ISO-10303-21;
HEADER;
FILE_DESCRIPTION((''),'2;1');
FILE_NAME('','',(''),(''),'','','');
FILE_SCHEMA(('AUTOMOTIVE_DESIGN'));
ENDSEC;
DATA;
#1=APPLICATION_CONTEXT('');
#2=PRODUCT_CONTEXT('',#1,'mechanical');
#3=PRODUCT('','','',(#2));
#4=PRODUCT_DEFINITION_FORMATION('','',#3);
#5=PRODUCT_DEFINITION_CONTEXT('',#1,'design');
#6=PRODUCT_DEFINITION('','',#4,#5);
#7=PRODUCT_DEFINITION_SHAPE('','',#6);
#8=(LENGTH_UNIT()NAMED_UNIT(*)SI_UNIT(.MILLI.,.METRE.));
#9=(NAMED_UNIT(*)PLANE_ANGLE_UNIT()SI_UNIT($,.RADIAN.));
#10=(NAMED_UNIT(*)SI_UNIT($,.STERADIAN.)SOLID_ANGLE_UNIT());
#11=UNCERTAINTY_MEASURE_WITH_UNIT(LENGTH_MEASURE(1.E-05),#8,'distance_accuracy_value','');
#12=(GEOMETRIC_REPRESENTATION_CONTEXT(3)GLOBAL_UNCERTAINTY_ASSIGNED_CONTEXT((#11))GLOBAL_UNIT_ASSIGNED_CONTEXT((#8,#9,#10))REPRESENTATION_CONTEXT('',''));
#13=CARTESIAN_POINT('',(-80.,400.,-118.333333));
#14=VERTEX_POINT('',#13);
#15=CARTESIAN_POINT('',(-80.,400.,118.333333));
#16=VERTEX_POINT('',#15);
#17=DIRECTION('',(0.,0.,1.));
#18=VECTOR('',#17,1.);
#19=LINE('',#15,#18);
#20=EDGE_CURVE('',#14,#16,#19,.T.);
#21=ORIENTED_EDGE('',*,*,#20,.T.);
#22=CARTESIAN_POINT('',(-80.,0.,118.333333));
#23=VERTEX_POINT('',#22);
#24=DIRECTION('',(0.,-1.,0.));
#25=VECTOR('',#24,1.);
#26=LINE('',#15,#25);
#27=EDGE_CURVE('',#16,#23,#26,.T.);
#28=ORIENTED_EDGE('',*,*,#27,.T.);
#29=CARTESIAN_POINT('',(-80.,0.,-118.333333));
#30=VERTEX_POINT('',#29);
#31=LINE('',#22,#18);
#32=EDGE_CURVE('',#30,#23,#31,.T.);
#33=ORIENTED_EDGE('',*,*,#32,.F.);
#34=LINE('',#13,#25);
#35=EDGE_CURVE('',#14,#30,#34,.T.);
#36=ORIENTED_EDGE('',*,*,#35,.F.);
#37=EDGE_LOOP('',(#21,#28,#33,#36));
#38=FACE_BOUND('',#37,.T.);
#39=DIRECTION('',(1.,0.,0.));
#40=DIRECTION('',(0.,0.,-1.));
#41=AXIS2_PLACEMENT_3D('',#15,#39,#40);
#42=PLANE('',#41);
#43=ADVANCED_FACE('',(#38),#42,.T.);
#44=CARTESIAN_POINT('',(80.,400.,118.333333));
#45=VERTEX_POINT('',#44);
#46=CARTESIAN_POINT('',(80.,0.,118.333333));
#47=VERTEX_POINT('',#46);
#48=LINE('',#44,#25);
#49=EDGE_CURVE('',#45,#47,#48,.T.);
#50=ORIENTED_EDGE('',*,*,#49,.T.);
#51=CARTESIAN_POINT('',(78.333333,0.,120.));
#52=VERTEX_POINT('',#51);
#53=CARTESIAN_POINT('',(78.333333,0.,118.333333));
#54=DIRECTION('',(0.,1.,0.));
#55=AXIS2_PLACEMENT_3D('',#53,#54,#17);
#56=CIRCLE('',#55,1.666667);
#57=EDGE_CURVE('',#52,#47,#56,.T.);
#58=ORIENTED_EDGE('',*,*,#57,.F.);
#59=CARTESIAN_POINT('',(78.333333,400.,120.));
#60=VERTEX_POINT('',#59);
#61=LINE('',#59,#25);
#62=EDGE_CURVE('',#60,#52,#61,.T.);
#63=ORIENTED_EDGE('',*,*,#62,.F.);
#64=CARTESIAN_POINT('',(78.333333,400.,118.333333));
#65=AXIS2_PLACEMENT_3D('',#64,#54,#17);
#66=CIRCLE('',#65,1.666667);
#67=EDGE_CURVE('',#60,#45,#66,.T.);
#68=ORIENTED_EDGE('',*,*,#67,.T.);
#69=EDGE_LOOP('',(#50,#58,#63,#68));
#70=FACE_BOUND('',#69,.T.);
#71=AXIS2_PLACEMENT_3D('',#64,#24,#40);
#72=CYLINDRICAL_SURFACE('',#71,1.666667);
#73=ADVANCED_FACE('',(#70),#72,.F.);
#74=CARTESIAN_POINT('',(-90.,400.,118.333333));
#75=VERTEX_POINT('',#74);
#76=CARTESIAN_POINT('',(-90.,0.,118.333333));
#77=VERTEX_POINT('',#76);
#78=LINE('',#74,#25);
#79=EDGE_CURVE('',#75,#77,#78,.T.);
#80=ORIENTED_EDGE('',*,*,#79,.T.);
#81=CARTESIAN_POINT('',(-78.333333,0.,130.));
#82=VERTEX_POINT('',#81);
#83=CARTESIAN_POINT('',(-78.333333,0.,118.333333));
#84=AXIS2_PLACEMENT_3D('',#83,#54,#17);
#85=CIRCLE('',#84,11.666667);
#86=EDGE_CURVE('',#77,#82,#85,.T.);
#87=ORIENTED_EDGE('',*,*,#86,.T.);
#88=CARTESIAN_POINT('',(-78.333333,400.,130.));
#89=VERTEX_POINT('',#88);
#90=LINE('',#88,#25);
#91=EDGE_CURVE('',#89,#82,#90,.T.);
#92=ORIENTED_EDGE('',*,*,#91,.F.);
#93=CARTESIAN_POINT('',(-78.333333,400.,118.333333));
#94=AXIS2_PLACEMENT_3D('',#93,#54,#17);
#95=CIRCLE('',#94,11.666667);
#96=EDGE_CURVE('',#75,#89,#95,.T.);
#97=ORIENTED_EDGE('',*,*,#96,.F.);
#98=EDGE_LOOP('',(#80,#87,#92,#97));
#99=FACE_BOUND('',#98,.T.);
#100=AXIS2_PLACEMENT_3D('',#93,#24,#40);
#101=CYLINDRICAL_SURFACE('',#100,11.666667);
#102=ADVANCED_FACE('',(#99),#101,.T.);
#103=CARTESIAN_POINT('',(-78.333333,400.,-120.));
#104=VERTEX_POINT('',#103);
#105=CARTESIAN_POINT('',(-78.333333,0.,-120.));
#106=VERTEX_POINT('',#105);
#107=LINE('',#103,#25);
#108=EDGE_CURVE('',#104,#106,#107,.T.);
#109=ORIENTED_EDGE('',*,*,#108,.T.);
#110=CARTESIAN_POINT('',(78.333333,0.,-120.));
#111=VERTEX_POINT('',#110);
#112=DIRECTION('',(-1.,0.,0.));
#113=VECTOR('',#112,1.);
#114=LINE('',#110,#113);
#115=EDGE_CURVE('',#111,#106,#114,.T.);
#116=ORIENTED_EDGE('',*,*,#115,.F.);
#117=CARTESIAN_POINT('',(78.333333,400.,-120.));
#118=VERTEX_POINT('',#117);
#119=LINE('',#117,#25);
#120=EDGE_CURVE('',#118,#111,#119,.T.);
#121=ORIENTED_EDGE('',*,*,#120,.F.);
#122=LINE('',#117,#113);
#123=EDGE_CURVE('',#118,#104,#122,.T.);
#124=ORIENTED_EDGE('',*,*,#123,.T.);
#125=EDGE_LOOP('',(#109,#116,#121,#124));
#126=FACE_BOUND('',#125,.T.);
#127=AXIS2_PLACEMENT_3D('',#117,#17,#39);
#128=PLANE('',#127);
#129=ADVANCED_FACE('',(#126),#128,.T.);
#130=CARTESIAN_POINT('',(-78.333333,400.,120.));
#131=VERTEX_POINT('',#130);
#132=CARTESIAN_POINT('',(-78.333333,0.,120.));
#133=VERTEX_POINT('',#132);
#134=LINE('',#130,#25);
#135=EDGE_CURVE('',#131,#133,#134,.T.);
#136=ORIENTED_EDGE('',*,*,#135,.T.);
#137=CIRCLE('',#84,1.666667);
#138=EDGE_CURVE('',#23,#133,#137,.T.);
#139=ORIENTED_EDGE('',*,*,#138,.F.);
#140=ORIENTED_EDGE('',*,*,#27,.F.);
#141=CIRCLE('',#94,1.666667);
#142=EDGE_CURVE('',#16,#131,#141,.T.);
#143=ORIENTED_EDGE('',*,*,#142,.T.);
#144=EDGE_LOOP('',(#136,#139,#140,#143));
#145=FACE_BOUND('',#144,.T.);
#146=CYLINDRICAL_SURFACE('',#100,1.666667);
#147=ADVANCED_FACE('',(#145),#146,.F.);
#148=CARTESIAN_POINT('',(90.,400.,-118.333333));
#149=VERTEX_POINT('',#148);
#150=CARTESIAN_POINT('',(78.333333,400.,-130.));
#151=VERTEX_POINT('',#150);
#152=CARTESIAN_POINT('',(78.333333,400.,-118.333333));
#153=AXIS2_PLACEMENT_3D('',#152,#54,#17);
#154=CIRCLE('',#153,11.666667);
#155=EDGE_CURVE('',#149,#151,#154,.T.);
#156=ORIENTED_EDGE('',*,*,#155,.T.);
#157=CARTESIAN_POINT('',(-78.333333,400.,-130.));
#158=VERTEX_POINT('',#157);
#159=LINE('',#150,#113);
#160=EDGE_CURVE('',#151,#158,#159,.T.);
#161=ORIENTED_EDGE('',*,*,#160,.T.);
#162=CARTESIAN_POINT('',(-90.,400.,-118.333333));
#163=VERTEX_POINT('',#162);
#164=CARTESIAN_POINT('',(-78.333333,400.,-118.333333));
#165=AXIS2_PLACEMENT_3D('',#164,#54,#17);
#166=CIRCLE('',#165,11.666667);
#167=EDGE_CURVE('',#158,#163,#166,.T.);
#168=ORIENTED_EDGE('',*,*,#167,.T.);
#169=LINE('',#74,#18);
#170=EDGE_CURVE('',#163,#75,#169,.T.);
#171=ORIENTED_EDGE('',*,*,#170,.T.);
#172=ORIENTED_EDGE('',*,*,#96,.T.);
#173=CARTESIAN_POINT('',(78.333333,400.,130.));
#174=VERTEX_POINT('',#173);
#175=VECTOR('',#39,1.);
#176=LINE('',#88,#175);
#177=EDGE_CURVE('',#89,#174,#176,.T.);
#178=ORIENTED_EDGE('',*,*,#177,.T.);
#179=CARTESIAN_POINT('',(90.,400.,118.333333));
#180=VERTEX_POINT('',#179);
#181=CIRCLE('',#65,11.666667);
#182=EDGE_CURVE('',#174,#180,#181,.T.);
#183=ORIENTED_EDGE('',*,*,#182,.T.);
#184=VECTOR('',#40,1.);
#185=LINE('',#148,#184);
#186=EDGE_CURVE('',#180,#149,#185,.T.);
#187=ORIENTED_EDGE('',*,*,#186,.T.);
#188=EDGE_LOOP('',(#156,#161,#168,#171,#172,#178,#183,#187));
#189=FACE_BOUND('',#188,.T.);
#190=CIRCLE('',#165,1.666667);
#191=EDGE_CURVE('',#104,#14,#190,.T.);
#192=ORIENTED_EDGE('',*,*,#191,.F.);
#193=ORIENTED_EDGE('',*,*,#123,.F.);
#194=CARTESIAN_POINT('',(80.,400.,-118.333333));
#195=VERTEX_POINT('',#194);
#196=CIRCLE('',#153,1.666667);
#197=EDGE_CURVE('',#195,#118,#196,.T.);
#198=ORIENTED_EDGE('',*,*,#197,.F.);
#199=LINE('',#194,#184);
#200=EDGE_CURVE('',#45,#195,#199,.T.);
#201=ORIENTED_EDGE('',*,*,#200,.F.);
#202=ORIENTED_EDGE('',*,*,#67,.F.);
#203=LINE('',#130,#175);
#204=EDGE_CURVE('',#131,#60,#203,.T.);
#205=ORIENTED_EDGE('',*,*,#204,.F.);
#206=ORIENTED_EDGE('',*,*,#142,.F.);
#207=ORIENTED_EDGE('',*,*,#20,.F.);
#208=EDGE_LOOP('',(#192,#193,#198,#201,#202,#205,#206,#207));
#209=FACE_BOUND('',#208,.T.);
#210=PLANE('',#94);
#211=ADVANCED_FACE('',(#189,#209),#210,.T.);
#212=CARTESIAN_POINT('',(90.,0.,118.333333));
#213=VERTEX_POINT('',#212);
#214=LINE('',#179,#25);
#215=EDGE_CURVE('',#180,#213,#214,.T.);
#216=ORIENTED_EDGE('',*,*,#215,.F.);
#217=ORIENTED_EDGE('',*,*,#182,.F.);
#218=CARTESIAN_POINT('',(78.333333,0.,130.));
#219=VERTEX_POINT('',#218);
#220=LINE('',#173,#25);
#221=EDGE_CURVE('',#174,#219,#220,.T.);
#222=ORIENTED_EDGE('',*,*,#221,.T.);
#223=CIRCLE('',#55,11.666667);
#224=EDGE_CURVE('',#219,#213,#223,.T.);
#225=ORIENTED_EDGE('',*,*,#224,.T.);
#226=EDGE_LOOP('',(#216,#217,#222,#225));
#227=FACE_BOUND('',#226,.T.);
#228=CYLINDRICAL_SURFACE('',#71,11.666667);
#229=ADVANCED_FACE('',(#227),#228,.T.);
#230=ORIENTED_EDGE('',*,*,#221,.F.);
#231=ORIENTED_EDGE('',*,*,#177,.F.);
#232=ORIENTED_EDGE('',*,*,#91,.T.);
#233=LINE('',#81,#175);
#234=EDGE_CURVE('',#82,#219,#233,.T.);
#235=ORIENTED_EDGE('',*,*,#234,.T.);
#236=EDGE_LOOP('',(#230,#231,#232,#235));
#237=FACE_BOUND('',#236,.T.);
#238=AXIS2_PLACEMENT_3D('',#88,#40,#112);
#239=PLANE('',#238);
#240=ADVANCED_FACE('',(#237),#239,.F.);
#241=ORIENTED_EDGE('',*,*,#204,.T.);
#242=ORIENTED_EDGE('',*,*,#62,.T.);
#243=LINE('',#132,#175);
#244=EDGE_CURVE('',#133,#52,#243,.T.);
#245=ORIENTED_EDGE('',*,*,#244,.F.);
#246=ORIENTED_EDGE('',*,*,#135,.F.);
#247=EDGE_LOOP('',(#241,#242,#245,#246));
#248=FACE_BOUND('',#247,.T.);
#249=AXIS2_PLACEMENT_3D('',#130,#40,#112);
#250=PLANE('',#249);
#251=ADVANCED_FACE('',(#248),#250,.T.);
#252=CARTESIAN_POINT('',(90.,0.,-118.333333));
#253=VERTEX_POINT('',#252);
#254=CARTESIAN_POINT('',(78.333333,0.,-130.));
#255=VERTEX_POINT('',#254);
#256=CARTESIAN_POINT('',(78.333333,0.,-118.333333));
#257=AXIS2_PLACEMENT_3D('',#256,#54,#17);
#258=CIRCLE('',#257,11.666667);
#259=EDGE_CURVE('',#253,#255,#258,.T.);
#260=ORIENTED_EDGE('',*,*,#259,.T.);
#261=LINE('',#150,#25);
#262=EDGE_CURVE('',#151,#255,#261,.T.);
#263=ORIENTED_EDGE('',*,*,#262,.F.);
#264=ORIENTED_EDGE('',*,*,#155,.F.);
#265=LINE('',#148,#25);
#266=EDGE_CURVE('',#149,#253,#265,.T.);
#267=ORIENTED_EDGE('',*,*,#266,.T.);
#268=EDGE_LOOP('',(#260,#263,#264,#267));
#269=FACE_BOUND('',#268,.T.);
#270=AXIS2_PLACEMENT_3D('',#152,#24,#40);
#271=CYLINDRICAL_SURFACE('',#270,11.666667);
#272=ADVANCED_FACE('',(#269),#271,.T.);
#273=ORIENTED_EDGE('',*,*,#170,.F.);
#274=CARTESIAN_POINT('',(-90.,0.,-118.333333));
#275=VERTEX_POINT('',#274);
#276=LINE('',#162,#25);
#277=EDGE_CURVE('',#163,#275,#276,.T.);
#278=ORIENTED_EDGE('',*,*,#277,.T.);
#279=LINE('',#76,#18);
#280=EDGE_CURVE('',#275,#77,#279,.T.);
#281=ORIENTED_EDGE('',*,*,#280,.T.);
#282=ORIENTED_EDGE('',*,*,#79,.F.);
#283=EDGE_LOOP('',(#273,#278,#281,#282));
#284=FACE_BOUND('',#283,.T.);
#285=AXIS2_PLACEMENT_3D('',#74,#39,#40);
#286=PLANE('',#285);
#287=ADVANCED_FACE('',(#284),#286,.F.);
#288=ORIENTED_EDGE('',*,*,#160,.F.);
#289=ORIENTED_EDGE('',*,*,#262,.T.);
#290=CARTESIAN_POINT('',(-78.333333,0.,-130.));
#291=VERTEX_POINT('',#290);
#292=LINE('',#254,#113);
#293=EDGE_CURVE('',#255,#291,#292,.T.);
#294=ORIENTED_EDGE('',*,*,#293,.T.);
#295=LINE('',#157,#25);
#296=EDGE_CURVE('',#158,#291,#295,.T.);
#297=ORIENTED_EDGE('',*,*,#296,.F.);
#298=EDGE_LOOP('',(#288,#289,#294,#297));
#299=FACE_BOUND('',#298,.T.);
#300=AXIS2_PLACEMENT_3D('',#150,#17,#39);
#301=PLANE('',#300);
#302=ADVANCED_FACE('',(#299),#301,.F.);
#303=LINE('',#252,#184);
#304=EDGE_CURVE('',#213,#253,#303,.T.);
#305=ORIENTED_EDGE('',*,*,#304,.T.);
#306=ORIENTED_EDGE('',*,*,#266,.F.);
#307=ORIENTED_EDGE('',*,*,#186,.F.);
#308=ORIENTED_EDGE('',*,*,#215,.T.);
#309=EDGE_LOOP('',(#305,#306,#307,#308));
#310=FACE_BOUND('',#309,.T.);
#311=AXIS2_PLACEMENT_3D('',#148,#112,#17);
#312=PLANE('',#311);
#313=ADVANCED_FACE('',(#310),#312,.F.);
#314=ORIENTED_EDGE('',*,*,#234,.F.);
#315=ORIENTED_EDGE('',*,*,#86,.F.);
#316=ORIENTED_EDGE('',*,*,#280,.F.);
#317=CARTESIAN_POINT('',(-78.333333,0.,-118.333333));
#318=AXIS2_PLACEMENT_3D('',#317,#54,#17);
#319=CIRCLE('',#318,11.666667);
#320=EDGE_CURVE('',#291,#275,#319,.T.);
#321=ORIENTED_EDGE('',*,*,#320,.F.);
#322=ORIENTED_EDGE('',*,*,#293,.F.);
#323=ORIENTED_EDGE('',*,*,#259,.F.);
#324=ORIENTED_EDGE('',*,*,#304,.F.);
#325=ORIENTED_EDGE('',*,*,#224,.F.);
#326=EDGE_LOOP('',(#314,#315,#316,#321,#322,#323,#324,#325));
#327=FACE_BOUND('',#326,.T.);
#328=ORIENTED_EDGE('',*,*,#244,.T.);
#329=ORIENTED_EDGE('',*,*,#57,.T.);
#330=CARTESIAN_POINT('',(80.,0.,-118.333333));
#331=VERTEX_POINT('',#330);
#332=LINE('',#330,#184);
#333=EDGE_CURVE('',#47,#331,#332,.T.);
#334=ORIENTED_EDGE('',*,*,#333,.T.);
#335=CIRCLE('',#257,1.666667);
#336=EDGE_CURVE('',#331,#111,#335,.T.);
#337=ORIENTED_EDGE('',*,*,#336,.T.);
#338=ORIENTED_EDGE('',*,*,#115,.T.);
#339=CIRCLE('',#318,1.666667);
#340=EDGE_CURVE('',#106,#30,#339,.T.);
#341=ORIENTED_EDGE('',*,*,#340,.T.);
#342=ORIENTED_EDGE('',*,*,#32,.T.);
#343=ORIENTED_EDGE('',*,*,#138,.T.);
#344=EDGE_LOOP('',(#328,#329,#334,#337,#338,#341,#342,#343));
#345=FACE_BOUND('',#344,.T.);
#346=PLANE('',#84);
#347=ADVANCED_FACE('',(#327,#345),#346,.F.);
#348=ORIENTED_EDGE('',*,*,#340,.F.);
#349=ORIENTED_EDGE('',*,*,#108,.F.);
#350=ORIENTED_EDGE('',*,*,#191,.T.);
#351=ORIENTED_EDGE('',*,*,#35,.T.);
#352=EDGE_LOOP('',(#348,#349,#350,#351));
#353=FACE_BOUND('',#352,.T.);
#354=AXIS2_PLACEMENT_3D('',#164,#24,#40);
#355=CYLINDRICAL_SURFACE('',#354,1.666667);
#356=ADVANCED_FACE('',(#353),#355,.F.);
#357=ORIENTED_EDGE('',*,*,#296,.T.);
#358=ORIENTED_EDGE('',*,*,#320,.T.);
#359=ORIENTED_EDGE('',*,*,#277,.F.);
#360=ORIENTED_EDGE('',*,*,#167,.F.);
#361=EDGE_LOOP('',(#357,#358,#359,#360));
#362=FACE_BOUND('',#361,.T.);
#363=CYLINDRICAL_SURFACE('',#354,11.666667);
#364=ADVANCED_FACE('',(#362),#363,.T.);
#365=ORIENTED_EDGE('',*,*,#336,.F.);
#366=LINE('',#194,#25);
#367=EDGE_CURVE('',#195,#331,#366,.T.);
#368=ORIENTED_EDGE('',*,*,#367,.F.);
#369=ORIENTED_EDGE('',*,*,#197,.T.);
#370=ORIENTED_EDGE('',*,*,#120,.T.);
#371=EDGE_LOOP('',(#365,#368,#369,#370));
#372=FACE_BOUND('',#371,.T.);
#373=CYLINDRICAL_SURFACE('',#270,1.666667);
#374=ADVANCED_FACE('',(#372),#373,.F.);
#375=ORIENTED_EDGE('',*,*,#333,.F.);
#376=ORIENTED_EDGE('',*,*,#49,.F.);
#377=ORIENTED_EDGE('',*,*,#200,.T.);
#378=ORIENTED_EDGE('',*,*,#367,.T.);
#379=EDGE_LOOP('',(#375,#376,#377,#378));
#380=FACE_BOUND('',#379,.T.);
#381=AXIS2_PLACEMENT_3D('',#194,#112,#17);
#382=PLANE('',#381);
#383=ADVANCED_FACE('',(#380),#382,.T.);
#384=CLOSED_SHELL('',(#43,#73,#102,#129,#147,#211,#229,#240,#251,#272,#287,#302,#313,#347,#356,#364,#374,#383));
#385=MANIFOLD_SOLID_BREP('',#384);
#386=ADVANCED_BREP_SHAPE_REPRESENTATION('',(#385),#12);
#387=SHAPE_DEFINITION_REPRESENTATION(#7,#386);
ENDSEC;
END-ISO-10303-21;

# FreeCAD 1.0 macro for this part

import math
import FreeCAD as App
import Part
import Sketcher

V = App.Vector

doc = App.newDocument("Part")
body = doc.addObject("PartDesign::Body", "Body")

sketch1 = doc.addObject("Sketcher::SketchObject", "Sketch")
body.addObject(sketch1)
sketch1.AttachmentSupport = (doc.XZ_Plane, [""])
sketch1.MapMode = "FlatFace"
sketch1.addGeometry([
    Part.LineSegment(V(78.3, -130, 0), V(-78.3, -130, 0)),
    Part.ArcOfCircle(Part.Circle(V(-78.3, -118.3, 0), V(0, 0, 1), 11.7), math.radians(180), math.radians(270)),
    Part.LineSegment(V(-90, -118.3, 0), V(-90, 118.3, 0)),
    Part.ArcOfCircle(Part.Circle(V(-78.3, 118.3, 0), V(0, 0, 1), 11.7), math.radians(90), math.radians(180)),
    Part.LineSegment(V(-78.3, 130, 0), V(78.3, 130, 0)),
    Part.ArcOfCircle(Part.Circle(V(78.3, 118.3, 0), V(0, 0, 1), 11.7), math.radians(0), math.radians(90)),
    Part.LineSegment(V(90, 118.3, 0), V(90, -118.3, 0)),
    Part.ArcOfCircle(Part.Circle(V(78.3, -118.3, 0), V(0, 0, 1), 11.7), math.radians(-90), math.radians(0)),
    Part.LineSegment(V(-78.3, -120, 0), V(78.3, -120, 0)),
    Part.ArcOfCircle(Part.Circle(V(78.3, -118.3, 0), V(0, 0, 1), 1.7), math.radians(-90), math.radians(0)),
    Part.LineSegment(V(80, -118.3, 0), V(80, 118.3, 0)),
    Part.ArcOfCircle(Part.Circle(V(78.3, 118.3, 0), V(0, 0, 1), 1.7), math.radians(0), math.radians(90)),
    Part.LineSegment(V(78.3, 120, 0), V(-78.3, 120, 0)),
    Part.ArcOfCircle(Part.Circle(V(-78.3, 118.3, 0), V(0, 0, 1), 1.7), math.radians(90), math.radians(180)),
    Part.LineSegment(V(-80, 118.3, 0), V(-80, -118.3, 0)),
    Part.ArcOfCircle(Part.Circle(V(-78.3, -118.3, 0), V(0, 0, 1), 1.7), math.radians(-180), math.radians(-90)),
], False)
sketch1.addConstraint([
    Sketcher.Constraint("Tangent", 0, 2, 1, 2),
    Sketcher.Constraint("Tangent", 1, 1, 2, 1),
    Sketcher.Constraint("Tangent", 2, 2, 3, 2),
    Sketcher.Constraint("Tangent", 3, 1, 4, 1),
    Sketcher.Constraint("Tangent", 4, 2, 5, 2),
    Sketcher.Constraint("Tangent", 5, 1, 6, 1),
    Sketcher.Constraint("Tangent", 6, 2, 7, 2),
    Sketcher.Constraint("Tangent", 7, 1, 0, 1),
    Sketcher.Constraint("Tangent", 8, 2, 9, 1),
    Sketcher.Constraint("Tangent", 9, 2, 10, 1),
    Sketcher.Constraint("Tangent", 10, 2, 11, 1),
    Sketcher.Constraint("Tangent", 11, 2, 12, 1),
    Sketcher.Constraint("Tangent", 12, 2, 13, 1),
    Sketcher.Constraint("Tangent", 13, 2, 14, 1),
    Sketcher.Constraint("Tangent", 14, 2, 15, 1),
    Sketcher.Constraint("Tangent", 15, 2, 8, 1),
    Sketcher.Constraint("Horizontal", 0),
    Sketcher.Constraint("Vertical", 2),
    Sketcher.Constraint("Horizontal", 4),
    Sketcher.Constraint("Vertical", 6),
    Sketcher.Constraint("Horizontal", 8),
    Sketcher.Constraint("Vertical", 10),
    Sketcher.Constraint("Horizontal", 12),
    Sketcher.Constraint("Vertical", 14),
    Sketcher.Constraint("Coincident", 9, 3, 7, 3),
    Sketcher.Constraint("Coincident", 11, 3, 5, 3),
    Sketcher.Constraint("Coincident", 13, 3, 3, 3),
    Sketcher.Constraint("Equal", 1, 3),
    Sketcher.Constraint("Equal", 3, 5),
    Sketcher.Constraint("Equal", 5, 7),
    Sketcher.Constraint("Equal", 13, 15),
    Sketcher.Constraint("Symmetric", 1, 3, 5, 3, -1, 1),
    Sketcher.Constraint("DistanceY", 0, 2, -1, 1, 130.0),
    Sketcher.Constraint("DistanceX", 1, 1, -1, 1, 90.0),
    Sketcher.Constraint("DistanceY", 8, 2, -1, 1, 120.0),
    Sketcher.Constraint("Radius", 1, 11.666667),
])
pad1 = doc.addObject("PartDesign::Pad", "Pad")
body.addObject(pad1)
pad1.Profile = sketch1
pad1.Length = 400
pad1.Reversed = True

doc.recompute()
